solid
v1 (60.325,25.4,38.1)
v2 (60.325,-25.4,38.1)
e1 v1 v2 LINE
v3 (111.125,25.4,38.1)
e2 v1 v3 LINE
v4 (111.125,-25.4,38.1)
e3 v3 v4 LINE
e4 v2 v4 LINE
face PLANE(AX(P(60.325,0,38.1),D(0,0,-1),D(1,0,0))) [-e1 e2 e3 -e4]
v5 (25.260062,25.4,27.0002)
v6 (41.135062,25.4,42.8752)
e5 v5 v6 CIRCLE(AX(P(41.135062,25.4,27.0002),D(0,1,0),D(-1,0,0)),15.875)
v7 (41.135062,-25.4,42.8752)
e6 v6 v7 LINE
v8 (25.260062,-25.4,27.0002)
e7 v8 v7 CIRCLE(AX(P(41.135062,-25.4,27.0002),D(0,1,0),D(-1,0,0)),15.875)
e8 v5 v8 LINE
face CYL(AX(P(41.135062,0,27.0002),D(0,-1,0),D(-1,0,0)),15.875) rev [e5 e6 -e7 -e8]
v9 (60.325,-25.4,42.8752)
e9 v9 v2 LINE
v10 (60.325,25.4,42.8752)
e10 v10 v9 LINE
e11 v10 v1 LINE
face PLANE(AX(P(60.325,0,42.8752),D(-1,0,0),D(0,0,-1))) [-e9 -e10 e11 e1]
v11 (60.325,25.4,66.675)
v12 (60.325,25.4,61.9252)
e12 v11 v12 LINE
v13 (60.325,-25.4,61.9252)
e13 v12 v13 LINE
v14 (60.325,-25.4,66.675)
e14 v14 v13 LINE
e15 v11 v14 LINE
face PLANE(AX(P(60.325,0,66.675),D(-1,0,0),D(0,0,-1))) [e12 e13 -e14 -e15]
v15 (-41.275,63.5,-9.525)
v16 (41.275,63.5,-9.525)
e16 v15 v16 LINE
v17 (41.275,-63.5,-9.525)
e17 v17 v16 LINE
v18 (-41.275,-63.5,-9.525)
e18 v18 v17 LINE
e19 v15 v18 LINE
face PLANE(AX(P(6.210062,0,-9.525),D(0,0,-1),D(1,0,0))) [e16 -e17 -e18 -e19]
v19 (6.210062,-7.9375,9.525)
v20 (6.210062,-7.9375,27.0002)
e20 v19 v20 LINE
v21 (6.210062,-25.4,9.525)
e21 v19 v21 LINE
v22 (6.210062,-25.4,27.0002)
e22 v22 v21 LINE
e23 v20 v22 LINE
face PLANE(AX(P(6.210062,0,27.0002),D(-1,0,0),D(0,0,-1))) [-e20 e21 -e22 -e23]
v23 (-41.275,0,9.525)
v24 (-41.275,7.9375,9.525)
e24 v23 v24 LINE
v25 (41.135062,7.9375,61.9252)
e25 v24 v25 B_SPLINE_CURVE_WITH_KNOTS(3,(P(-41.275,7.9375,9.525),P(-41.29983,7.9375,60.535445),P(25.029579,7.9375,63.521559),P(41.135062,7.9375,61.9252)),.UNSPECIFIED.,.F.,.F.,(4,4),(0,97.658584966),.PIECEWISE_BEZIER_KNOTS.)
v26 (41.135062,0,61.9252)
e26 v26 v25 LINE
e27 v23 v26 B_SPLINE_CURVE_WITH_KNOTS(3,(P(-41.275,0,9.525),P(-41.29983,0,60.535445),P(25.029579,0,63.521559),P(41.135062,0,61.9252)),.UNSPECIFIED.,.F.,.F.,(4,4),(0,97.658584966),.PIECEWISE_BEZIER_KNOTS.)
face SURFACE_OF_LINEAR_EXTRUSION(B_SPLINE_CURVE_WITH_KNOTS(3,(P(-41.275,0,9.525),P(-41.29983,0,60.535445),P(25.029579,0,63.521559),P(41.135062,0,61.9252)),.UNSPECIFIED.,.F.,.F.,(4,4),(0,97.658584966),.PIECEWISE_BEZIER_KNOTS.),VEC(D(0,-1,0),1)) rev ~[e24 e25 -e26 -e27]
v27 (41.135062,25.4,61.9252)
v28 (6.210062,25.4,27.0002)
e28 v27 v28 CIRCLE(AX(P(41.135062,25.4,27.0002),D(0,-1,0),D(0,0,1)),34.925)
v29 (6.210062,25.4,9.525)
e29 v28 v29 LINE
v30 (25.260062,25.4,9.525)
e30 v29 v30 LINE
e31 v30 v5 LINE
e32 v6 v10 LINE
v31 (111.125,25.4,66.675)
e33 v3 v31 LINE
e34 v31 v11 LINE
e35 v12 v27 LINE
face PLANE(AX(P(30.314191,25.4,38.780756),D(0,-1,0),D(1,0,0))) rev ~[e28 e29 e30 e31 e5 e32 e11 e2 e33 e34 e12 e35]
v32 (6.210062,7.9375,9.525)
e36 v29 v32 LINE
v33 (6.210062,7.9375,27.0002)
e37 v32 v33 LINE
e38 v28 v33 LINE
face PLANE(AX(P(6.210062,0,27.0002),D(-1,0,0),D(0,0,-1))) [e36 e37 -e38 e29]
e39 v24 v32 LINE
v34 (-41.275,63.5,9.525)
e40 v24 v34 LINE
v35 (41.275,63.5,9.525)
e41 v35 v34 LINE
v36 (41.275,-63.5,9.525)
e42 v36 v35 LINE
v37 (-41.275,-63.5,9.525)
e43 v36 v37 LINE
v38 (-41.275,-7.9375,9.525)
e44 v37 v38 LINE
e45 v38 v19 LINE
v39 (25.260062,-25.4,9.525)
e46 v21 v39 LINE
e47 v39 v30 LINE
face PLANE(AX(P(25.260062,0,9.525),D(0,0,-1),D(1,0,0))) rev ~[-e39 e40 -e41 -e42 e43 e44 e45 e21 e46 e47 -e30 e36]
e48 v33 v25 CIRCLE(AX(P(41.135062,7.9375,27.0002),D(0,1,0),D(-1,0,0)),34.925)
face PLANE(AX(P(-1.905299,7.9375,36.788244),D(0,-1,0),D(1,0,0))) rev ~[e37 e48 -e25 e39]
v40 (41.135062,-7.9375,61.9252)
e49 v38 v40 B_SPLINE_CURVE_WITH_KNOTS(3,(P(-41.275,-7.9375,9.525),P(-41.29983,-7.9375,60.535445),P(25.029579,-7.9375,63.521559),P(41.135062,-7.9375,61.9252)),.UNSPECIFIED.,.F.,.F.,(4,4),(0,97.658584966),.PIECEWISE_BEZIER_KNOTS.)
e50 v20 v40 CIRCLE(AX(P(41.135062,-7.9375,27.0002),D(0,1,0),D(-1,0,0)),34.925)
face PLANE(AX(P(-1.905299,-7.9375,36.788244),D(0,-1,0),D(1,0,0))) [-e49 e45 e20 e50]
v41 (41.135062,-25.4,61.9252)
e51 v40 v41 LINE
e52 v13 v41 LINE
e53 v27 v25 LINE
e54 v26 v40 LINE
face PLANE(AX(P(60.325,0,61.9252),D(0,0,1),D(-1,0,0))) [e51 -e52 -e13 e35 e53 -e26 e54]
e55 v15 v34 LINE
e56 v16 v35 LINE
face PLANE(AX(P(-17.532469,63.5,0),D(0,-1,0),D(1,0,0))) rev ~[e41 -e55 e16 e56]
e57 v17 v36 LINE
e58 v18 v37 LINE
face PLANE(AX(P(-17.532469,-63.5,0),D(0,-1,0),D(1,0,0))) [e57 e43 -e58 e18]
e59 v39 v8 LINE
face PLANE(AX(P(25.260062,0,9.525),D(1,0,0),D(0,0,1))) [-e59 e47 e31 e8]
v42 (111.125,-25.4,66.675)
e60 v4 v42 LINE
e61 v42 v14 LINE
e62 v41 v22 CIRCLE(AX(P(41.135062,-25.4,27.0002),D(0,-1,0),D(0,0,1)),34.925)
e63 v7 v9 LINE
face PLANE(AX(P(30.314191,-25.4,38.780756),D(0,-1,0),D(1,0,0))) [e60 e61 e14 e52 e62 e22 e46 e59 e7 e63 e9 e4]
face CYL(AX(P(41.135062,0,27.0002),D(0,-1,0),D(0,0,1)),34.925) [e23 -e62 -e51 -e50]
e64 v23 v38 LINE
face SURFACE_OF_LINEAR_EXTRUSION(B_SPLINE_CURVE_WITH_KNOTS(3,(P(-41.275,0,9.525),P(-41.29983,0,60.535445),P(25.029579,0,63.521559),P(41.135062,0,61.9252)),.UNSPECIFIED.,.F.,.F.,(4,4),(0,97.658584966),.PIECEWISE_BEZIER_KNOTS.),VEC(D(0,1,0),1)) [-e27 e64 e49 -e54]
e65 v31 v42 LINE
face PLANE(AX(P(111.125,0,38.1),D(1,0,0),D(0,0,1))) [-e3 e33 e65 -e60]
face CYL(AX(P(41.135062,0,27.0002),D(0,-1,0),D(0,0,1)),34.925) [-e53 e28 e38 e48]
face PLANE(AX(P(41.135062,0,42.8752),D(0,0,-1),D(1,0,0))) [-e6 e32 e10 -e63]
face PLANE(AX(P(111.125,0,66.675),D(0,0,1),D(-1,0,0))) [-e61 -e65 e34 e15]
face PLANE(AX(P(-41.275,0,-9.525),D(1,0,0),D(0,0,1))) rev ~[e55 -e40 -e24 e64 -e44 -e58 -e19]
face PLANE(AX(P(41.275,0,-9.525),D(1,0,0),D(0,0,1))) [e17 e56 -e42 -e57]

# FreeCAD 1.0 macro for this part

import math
import FreeCAD as App
import Part
import Sketcher
from FreeCAD import Vector
Q = App.Units.Quantity

doc = App.newDocument("Part")
body = doc.addObject("PartDesign::Body", "Body")

# Sketch on XZ plane
sketch1 = doc.addObject("Sketcher::SketchObject", "Sketch")
body.addObject(sketch1)
sketch1.AttachmentSupport = (doc.XZ_Plane, [""])
sketch1.MapMode = "FlatFace"
sketch1.addGeometry(Part.LineSegment(Vector(-41.275, 9.525, 0), Vector(-41.275, -9.525, 0)), False)
sketch1.addGeometry(Part.LineSegment(Vector(-41.275, -9.525, 0), Vector(41.275, -9.525, 0)), False)
sketch1.addGeometry(Part.LineSegment(Vector(41.275, -9.525, 0), Vector(41.275, 9.525, 0)), False)
sketch1.addGeometry(Part.LineSegment(Vector(41.275, 9.525, 0), Vector(-41.275, 9.525, 0)), False)
sketch1.addConstraint(Sketcher.Constraint("Coincident", 0, 2, 1, 1))
sketch1.addConstraint(Sketcher.Constraint("Coincident", 1, 2, 2, 1))
sketch1.addConstraint(Sketcher.Constraint("Coincident", 2, 2, 3, 1))
sketch1.addConstraint(Sketcher.Constraint("Coincident", 3, 2, 0, 1))
sketch1.addConstraint(Sketcher.Constraint("Vertical", 0))
sketch1.addConstraint(Sketcher.Constraint("Horizontal", 1))
sketch1.addConstraint(Sketcher.Constraint("Vertical", 2))
sketch1.addConstraint(Sketcher.Constraint("Horizontal", 3))
sketch1.addConstraint(Sketcher.Constraint("Symmetric", 0, 2, 2, 2, -1, 1))
sketch1.addConstraint(Sketcher.Constraint("DistanceX", 1, 1, 1, 2, Q("3.25 in")))
sketch1.addConstraint(Sketcher.Constraint("DistanceY", 0, 2, 0, 1, Q("0.75 in")))
pad1 = doc.addObject("PartDesign::Pad", "Pad")
body.addObject(pad1)
pad1.Profile = sketch1
pad1.Length = Q("5 in")
pad1.Midplane = True

# Sketch on XZ plane
sketch2 = doc.addObject("Sketcher::SketchObject", "Sketch001")
body.addObject(sketch2)
sketch2.AttachmentSupport = (doc.XZ_Plane, [""])
sketch2.MapMode = "FlatFace"
sketch2.addGeometry(Part.LineSegment(Vector(25.260062, 9.525, 0), Vector(25.260062, 27.0002, 0)), False)
sketch2.addGeometry(Part.ArcOfCircle(Part.Circle(Vector(41.135062, 27.0002, 0), Vector(0, 0, 1), 15.875), math.radians(90), math.radians(180)), False)
sketch2.addGeometry(Part.LineSegment(Vector(41.135062, 42.8752, 0), Vector(60.325, 42.8752, 0)), False)
sketch2.addGeometry(Part.LineSegment(Vector(60.325, 42.8752, 0), Vector(60.325, 38.1, 0)), False)
sketch2.addGeometry(Part.LineSegment(Vector(60.325, 38.1, 0), Vector(111.125, 38.1, 0)), False)
sketch2.addGeometry(Part.LineSegment(Vector(111.125, 38.1, 0), Vector(111.125, 66.675, 0)), False)
sketch2.addGeometry(Part.LineSegment(Vector(111.125, 66.675, 0), Vector(60.325, 66.675, 0)), False)
sketch2.addGeometry(Part.LineSegment(Vector(60.325, 66.675, 0), Vector(60.325, 61.9252, 0)), False)
sketch2.addGeometry(Part.LineSegment(Vector(60.325, 61.9252, 0), Vector(41.135062, 61.9252, 0)), False)
sketch2.addGeometry(Part.ArcOfCircle(Part.Circle(Vector(41.135062, 27.0002, 0), Vector(0, 0, 1), 34.925), math.radians(90), math.radians(180)), False)
sketch2.addGeometry(Part.LineSegment(Vector(6.210062, 27.0002, 0), Vector(6.210062, -9.525, 0)), False)
sketch2.addGeometry(Part.LineSegment(Vector(6.210062, -9.525, 0), Vector(41.275, -9.525, 0)), False)
sketch2.addGeometry(Part.LineSegment(Vector(41.275, -9.525, 0), Vector(41.275, 9.525, 0)), False)
sketch2.addGeometry(Part.LineSegment(Vector(41.275, 9.525, 0), Vector(25.260062, 9.525, 0)), False)
sketch2.addConstraint(Sketcher.Constraint("Tangent", 0, 2, 1, 2))
sketch2.addConstraint(Sketcher.Constraint("Tangent", 1, 1, 2, 1))
sketch2.addConstraint(Sketcher.Constraint("Coincident", 2, 2, 3, 1))
sketch2.addConstraint(Sketcher.Constraint("Coincident", 3, 2, 4, 1))
sketch2.addConstraint(Sketcher.Constraint("Coincident", 4, 2, 5, 1))
sketch2.addConstraint(Sketcher.Constraint("Coincident", 5, 2, 6, 1))
sketch2.addConstraint(Sketcher.Constraint("Coincident", 6, 2, 7, 1))
sketch2.addConstraint(Sketcher.Constraint("Coincident", 7, 2, 8, 1))
sketch2.addConstraint(Sketcher.Constraint("Tangent", 8, 2, 9, 1))
sketch2.addConstraint(Sketcher.Constraint("Tangent", 9, 2, 10, 1))
sketch2.addConstraint(Sketcher.Constraint("Coincident", 10, 2, 11, 1))
sketch2.addConstraint(Sketcher.Constraint("Coincident", 11, 2, 12, 1))
sketch2.addConstraint(Sketcher.Constraint("Coincident", 12, 2, 13, 1))
sketch2.addConstraint(Sketcher.Constraint("Coincident", 13, 2, 0, 1))
sketch2.addConstraint(Sketcher.Constraint("Vertical", 0))
sketch2.addConstraint(Sketcher.Constraint("Horizontal", 2))
sketch2.addConstraint(Sketcher.Constraint("Vertical", 3))
sketch2.addConstraint(Sketcher.Constraint("Horizontal", 4))
sketch2.addConstraint(Sketcher.Constraint("Vertical", 5))
sketch2.addConstraint(Sketcher.Constraint("Horizontal", 6))
sketch2.addConstraint(Sketcher.Constraint("Vertical", 7))
sketch2.addConstraint(Sketcher.Constraint("Horizontal", 8))
sketch2.addConstraint(Sketcher.Constraint("Vertical", 10))
sketch2.addConstraint(Sketcher.Constraint("Horizontal", 11))
sketch2.addConstraint(Sketcher.Constraint("Vertical", 12))
sketch2.addConstraint(Sketcher.Constraint("Horizontal", 13))
sketch2.addConstraint(Sketcher.Constraint("Coincident", 9, 3, 1, 3))
sketch2.addConstraint(Sketcher.Constraint("Vertical", 3, 2, 6, 2))
sketch2.addConstraint(Sketcher.Constraint("DistanceX", 4, 1, 4, 2, Q("2 in")))
sketch2.addConstraint(Sketcher.Constraint("Radius", 1, Q("0.625 in")))
sketch2.addConstraint(Sketcher.Constraint("Radius", 9, Q("1.375 in")))
sketch2.addConstraint(Sketcher.Constraint("DistanceY", 12, 1, 12, 2, Q("0.75 in")))
sketch2.addConstraint(Sketcher.Constraint("DistanceY", -1, 1, 3, 2, Q("1.5 in")))
sketch2.addConstraint(Sketcher.Constraint("DistanceY", 0, 1, 0, 2, Q("0.688 in")))
sketch2.addConstraint(Sketcher.Constraint("DistanceY", 3, 2, 3, 1, Q("0.188 in")))
sketch2.addConstraint(Sketcher.Constraint("DistanceY", 5, 1, 5, 2, Q("1.125 in")))
sketch2.addConstraint(Sketcher.Constraint("DistanceX", -1, 1, 2, 2, Q("2.375 in")))
sketch2.addConstraint(Sketcher.Constraint("DistanceX", -1, 1, 11, 2, Q("1.625 in")))
sketch2.addConstraint(Sketcher.Constraint("DistanceX", 2, 1, 2, 2, Q("19.189938 mm")))
pad2 = doc.addObject("PartDesign::Pad", "Pad001")
body.addObject(pad2)
pad2.Profile = sketch2
pad2.Length = Q("2 in")
pad2.Midplane = True

# Sketch on XZ plane
sketch3 = doc.addObject("Sketcher::SketchObject", "Sketch002")
body.addObject(sketch3)
sketch3.AttachmentSupport = (doc.XZ_Plane, [""])
sketch3.MapMode = "FlatFace"
sketch3.addGeometry(Part.LineSegment(Vector(-41.275, 9.525, 0), Vector(6.210062, 9.525, 0)), False)
sketch3.addGeometry(Part.LineSegment(Vector(6.210062, 9.525, 0), Vector(6.210062, 27.0002, 0)), False)
sketch3.addGeometry(Part.ArcOfCircle(Part.Circle(Vector(41.135062, 27.0002, 0), Vector(0, 0, 1), 34.925), math.radians(90), math.radians(180)), False)
sketch3.addGeometry(Part.BSplineCurve([Vector(-41.275, 9.525, 0), Vector(-41.29983, 60.535445, 0), Vector(25.029579, 63.521559, 0), Vector(41.135062, 61.9252, 0)], [4, 4], [0, 97.658584966], False, 3, [1, 1, 1, 1], False), False)
sketch3.addConstraint(Sketcher.Constraint("Block", 3))
sketch3.addConstraint(Sketcher.Constraint("Coincident", 0, 2, 1, 1))
sketch3.addConstraint(Sketcher.Constraint("Tangent", 1, 2, 2, 2))
sketch3.addConstraint(Sketcher.Constraint("Coincident", 2, 1, 3, 2))
sketch3.addConstraint(Sketcher.Constraint("Coincident", 3, 1, 0, 1))
sketch3.addConstraint(Sketcher.Constraint("Horizontal", 0))
sketch3.addConstraint(Sketcher.Constraint("Vertical", 1))
sketch3.addConstraint(Sketcher.Constraint("Radius", 2, Q("1.375 in")))
sketch3.addConstraint(Sketcher.Constraint("DistanceX", 1, 2, 2, 1, Q("1.375 in")))
pad3 = doc.addObject("PartDesign::Pad", "Pad002")
body.addObject(pad3)
pad3.Profile = sketch3
pad3.Length = Q("0.625 in")
pad3.Midplane = True

doc.recompute()
